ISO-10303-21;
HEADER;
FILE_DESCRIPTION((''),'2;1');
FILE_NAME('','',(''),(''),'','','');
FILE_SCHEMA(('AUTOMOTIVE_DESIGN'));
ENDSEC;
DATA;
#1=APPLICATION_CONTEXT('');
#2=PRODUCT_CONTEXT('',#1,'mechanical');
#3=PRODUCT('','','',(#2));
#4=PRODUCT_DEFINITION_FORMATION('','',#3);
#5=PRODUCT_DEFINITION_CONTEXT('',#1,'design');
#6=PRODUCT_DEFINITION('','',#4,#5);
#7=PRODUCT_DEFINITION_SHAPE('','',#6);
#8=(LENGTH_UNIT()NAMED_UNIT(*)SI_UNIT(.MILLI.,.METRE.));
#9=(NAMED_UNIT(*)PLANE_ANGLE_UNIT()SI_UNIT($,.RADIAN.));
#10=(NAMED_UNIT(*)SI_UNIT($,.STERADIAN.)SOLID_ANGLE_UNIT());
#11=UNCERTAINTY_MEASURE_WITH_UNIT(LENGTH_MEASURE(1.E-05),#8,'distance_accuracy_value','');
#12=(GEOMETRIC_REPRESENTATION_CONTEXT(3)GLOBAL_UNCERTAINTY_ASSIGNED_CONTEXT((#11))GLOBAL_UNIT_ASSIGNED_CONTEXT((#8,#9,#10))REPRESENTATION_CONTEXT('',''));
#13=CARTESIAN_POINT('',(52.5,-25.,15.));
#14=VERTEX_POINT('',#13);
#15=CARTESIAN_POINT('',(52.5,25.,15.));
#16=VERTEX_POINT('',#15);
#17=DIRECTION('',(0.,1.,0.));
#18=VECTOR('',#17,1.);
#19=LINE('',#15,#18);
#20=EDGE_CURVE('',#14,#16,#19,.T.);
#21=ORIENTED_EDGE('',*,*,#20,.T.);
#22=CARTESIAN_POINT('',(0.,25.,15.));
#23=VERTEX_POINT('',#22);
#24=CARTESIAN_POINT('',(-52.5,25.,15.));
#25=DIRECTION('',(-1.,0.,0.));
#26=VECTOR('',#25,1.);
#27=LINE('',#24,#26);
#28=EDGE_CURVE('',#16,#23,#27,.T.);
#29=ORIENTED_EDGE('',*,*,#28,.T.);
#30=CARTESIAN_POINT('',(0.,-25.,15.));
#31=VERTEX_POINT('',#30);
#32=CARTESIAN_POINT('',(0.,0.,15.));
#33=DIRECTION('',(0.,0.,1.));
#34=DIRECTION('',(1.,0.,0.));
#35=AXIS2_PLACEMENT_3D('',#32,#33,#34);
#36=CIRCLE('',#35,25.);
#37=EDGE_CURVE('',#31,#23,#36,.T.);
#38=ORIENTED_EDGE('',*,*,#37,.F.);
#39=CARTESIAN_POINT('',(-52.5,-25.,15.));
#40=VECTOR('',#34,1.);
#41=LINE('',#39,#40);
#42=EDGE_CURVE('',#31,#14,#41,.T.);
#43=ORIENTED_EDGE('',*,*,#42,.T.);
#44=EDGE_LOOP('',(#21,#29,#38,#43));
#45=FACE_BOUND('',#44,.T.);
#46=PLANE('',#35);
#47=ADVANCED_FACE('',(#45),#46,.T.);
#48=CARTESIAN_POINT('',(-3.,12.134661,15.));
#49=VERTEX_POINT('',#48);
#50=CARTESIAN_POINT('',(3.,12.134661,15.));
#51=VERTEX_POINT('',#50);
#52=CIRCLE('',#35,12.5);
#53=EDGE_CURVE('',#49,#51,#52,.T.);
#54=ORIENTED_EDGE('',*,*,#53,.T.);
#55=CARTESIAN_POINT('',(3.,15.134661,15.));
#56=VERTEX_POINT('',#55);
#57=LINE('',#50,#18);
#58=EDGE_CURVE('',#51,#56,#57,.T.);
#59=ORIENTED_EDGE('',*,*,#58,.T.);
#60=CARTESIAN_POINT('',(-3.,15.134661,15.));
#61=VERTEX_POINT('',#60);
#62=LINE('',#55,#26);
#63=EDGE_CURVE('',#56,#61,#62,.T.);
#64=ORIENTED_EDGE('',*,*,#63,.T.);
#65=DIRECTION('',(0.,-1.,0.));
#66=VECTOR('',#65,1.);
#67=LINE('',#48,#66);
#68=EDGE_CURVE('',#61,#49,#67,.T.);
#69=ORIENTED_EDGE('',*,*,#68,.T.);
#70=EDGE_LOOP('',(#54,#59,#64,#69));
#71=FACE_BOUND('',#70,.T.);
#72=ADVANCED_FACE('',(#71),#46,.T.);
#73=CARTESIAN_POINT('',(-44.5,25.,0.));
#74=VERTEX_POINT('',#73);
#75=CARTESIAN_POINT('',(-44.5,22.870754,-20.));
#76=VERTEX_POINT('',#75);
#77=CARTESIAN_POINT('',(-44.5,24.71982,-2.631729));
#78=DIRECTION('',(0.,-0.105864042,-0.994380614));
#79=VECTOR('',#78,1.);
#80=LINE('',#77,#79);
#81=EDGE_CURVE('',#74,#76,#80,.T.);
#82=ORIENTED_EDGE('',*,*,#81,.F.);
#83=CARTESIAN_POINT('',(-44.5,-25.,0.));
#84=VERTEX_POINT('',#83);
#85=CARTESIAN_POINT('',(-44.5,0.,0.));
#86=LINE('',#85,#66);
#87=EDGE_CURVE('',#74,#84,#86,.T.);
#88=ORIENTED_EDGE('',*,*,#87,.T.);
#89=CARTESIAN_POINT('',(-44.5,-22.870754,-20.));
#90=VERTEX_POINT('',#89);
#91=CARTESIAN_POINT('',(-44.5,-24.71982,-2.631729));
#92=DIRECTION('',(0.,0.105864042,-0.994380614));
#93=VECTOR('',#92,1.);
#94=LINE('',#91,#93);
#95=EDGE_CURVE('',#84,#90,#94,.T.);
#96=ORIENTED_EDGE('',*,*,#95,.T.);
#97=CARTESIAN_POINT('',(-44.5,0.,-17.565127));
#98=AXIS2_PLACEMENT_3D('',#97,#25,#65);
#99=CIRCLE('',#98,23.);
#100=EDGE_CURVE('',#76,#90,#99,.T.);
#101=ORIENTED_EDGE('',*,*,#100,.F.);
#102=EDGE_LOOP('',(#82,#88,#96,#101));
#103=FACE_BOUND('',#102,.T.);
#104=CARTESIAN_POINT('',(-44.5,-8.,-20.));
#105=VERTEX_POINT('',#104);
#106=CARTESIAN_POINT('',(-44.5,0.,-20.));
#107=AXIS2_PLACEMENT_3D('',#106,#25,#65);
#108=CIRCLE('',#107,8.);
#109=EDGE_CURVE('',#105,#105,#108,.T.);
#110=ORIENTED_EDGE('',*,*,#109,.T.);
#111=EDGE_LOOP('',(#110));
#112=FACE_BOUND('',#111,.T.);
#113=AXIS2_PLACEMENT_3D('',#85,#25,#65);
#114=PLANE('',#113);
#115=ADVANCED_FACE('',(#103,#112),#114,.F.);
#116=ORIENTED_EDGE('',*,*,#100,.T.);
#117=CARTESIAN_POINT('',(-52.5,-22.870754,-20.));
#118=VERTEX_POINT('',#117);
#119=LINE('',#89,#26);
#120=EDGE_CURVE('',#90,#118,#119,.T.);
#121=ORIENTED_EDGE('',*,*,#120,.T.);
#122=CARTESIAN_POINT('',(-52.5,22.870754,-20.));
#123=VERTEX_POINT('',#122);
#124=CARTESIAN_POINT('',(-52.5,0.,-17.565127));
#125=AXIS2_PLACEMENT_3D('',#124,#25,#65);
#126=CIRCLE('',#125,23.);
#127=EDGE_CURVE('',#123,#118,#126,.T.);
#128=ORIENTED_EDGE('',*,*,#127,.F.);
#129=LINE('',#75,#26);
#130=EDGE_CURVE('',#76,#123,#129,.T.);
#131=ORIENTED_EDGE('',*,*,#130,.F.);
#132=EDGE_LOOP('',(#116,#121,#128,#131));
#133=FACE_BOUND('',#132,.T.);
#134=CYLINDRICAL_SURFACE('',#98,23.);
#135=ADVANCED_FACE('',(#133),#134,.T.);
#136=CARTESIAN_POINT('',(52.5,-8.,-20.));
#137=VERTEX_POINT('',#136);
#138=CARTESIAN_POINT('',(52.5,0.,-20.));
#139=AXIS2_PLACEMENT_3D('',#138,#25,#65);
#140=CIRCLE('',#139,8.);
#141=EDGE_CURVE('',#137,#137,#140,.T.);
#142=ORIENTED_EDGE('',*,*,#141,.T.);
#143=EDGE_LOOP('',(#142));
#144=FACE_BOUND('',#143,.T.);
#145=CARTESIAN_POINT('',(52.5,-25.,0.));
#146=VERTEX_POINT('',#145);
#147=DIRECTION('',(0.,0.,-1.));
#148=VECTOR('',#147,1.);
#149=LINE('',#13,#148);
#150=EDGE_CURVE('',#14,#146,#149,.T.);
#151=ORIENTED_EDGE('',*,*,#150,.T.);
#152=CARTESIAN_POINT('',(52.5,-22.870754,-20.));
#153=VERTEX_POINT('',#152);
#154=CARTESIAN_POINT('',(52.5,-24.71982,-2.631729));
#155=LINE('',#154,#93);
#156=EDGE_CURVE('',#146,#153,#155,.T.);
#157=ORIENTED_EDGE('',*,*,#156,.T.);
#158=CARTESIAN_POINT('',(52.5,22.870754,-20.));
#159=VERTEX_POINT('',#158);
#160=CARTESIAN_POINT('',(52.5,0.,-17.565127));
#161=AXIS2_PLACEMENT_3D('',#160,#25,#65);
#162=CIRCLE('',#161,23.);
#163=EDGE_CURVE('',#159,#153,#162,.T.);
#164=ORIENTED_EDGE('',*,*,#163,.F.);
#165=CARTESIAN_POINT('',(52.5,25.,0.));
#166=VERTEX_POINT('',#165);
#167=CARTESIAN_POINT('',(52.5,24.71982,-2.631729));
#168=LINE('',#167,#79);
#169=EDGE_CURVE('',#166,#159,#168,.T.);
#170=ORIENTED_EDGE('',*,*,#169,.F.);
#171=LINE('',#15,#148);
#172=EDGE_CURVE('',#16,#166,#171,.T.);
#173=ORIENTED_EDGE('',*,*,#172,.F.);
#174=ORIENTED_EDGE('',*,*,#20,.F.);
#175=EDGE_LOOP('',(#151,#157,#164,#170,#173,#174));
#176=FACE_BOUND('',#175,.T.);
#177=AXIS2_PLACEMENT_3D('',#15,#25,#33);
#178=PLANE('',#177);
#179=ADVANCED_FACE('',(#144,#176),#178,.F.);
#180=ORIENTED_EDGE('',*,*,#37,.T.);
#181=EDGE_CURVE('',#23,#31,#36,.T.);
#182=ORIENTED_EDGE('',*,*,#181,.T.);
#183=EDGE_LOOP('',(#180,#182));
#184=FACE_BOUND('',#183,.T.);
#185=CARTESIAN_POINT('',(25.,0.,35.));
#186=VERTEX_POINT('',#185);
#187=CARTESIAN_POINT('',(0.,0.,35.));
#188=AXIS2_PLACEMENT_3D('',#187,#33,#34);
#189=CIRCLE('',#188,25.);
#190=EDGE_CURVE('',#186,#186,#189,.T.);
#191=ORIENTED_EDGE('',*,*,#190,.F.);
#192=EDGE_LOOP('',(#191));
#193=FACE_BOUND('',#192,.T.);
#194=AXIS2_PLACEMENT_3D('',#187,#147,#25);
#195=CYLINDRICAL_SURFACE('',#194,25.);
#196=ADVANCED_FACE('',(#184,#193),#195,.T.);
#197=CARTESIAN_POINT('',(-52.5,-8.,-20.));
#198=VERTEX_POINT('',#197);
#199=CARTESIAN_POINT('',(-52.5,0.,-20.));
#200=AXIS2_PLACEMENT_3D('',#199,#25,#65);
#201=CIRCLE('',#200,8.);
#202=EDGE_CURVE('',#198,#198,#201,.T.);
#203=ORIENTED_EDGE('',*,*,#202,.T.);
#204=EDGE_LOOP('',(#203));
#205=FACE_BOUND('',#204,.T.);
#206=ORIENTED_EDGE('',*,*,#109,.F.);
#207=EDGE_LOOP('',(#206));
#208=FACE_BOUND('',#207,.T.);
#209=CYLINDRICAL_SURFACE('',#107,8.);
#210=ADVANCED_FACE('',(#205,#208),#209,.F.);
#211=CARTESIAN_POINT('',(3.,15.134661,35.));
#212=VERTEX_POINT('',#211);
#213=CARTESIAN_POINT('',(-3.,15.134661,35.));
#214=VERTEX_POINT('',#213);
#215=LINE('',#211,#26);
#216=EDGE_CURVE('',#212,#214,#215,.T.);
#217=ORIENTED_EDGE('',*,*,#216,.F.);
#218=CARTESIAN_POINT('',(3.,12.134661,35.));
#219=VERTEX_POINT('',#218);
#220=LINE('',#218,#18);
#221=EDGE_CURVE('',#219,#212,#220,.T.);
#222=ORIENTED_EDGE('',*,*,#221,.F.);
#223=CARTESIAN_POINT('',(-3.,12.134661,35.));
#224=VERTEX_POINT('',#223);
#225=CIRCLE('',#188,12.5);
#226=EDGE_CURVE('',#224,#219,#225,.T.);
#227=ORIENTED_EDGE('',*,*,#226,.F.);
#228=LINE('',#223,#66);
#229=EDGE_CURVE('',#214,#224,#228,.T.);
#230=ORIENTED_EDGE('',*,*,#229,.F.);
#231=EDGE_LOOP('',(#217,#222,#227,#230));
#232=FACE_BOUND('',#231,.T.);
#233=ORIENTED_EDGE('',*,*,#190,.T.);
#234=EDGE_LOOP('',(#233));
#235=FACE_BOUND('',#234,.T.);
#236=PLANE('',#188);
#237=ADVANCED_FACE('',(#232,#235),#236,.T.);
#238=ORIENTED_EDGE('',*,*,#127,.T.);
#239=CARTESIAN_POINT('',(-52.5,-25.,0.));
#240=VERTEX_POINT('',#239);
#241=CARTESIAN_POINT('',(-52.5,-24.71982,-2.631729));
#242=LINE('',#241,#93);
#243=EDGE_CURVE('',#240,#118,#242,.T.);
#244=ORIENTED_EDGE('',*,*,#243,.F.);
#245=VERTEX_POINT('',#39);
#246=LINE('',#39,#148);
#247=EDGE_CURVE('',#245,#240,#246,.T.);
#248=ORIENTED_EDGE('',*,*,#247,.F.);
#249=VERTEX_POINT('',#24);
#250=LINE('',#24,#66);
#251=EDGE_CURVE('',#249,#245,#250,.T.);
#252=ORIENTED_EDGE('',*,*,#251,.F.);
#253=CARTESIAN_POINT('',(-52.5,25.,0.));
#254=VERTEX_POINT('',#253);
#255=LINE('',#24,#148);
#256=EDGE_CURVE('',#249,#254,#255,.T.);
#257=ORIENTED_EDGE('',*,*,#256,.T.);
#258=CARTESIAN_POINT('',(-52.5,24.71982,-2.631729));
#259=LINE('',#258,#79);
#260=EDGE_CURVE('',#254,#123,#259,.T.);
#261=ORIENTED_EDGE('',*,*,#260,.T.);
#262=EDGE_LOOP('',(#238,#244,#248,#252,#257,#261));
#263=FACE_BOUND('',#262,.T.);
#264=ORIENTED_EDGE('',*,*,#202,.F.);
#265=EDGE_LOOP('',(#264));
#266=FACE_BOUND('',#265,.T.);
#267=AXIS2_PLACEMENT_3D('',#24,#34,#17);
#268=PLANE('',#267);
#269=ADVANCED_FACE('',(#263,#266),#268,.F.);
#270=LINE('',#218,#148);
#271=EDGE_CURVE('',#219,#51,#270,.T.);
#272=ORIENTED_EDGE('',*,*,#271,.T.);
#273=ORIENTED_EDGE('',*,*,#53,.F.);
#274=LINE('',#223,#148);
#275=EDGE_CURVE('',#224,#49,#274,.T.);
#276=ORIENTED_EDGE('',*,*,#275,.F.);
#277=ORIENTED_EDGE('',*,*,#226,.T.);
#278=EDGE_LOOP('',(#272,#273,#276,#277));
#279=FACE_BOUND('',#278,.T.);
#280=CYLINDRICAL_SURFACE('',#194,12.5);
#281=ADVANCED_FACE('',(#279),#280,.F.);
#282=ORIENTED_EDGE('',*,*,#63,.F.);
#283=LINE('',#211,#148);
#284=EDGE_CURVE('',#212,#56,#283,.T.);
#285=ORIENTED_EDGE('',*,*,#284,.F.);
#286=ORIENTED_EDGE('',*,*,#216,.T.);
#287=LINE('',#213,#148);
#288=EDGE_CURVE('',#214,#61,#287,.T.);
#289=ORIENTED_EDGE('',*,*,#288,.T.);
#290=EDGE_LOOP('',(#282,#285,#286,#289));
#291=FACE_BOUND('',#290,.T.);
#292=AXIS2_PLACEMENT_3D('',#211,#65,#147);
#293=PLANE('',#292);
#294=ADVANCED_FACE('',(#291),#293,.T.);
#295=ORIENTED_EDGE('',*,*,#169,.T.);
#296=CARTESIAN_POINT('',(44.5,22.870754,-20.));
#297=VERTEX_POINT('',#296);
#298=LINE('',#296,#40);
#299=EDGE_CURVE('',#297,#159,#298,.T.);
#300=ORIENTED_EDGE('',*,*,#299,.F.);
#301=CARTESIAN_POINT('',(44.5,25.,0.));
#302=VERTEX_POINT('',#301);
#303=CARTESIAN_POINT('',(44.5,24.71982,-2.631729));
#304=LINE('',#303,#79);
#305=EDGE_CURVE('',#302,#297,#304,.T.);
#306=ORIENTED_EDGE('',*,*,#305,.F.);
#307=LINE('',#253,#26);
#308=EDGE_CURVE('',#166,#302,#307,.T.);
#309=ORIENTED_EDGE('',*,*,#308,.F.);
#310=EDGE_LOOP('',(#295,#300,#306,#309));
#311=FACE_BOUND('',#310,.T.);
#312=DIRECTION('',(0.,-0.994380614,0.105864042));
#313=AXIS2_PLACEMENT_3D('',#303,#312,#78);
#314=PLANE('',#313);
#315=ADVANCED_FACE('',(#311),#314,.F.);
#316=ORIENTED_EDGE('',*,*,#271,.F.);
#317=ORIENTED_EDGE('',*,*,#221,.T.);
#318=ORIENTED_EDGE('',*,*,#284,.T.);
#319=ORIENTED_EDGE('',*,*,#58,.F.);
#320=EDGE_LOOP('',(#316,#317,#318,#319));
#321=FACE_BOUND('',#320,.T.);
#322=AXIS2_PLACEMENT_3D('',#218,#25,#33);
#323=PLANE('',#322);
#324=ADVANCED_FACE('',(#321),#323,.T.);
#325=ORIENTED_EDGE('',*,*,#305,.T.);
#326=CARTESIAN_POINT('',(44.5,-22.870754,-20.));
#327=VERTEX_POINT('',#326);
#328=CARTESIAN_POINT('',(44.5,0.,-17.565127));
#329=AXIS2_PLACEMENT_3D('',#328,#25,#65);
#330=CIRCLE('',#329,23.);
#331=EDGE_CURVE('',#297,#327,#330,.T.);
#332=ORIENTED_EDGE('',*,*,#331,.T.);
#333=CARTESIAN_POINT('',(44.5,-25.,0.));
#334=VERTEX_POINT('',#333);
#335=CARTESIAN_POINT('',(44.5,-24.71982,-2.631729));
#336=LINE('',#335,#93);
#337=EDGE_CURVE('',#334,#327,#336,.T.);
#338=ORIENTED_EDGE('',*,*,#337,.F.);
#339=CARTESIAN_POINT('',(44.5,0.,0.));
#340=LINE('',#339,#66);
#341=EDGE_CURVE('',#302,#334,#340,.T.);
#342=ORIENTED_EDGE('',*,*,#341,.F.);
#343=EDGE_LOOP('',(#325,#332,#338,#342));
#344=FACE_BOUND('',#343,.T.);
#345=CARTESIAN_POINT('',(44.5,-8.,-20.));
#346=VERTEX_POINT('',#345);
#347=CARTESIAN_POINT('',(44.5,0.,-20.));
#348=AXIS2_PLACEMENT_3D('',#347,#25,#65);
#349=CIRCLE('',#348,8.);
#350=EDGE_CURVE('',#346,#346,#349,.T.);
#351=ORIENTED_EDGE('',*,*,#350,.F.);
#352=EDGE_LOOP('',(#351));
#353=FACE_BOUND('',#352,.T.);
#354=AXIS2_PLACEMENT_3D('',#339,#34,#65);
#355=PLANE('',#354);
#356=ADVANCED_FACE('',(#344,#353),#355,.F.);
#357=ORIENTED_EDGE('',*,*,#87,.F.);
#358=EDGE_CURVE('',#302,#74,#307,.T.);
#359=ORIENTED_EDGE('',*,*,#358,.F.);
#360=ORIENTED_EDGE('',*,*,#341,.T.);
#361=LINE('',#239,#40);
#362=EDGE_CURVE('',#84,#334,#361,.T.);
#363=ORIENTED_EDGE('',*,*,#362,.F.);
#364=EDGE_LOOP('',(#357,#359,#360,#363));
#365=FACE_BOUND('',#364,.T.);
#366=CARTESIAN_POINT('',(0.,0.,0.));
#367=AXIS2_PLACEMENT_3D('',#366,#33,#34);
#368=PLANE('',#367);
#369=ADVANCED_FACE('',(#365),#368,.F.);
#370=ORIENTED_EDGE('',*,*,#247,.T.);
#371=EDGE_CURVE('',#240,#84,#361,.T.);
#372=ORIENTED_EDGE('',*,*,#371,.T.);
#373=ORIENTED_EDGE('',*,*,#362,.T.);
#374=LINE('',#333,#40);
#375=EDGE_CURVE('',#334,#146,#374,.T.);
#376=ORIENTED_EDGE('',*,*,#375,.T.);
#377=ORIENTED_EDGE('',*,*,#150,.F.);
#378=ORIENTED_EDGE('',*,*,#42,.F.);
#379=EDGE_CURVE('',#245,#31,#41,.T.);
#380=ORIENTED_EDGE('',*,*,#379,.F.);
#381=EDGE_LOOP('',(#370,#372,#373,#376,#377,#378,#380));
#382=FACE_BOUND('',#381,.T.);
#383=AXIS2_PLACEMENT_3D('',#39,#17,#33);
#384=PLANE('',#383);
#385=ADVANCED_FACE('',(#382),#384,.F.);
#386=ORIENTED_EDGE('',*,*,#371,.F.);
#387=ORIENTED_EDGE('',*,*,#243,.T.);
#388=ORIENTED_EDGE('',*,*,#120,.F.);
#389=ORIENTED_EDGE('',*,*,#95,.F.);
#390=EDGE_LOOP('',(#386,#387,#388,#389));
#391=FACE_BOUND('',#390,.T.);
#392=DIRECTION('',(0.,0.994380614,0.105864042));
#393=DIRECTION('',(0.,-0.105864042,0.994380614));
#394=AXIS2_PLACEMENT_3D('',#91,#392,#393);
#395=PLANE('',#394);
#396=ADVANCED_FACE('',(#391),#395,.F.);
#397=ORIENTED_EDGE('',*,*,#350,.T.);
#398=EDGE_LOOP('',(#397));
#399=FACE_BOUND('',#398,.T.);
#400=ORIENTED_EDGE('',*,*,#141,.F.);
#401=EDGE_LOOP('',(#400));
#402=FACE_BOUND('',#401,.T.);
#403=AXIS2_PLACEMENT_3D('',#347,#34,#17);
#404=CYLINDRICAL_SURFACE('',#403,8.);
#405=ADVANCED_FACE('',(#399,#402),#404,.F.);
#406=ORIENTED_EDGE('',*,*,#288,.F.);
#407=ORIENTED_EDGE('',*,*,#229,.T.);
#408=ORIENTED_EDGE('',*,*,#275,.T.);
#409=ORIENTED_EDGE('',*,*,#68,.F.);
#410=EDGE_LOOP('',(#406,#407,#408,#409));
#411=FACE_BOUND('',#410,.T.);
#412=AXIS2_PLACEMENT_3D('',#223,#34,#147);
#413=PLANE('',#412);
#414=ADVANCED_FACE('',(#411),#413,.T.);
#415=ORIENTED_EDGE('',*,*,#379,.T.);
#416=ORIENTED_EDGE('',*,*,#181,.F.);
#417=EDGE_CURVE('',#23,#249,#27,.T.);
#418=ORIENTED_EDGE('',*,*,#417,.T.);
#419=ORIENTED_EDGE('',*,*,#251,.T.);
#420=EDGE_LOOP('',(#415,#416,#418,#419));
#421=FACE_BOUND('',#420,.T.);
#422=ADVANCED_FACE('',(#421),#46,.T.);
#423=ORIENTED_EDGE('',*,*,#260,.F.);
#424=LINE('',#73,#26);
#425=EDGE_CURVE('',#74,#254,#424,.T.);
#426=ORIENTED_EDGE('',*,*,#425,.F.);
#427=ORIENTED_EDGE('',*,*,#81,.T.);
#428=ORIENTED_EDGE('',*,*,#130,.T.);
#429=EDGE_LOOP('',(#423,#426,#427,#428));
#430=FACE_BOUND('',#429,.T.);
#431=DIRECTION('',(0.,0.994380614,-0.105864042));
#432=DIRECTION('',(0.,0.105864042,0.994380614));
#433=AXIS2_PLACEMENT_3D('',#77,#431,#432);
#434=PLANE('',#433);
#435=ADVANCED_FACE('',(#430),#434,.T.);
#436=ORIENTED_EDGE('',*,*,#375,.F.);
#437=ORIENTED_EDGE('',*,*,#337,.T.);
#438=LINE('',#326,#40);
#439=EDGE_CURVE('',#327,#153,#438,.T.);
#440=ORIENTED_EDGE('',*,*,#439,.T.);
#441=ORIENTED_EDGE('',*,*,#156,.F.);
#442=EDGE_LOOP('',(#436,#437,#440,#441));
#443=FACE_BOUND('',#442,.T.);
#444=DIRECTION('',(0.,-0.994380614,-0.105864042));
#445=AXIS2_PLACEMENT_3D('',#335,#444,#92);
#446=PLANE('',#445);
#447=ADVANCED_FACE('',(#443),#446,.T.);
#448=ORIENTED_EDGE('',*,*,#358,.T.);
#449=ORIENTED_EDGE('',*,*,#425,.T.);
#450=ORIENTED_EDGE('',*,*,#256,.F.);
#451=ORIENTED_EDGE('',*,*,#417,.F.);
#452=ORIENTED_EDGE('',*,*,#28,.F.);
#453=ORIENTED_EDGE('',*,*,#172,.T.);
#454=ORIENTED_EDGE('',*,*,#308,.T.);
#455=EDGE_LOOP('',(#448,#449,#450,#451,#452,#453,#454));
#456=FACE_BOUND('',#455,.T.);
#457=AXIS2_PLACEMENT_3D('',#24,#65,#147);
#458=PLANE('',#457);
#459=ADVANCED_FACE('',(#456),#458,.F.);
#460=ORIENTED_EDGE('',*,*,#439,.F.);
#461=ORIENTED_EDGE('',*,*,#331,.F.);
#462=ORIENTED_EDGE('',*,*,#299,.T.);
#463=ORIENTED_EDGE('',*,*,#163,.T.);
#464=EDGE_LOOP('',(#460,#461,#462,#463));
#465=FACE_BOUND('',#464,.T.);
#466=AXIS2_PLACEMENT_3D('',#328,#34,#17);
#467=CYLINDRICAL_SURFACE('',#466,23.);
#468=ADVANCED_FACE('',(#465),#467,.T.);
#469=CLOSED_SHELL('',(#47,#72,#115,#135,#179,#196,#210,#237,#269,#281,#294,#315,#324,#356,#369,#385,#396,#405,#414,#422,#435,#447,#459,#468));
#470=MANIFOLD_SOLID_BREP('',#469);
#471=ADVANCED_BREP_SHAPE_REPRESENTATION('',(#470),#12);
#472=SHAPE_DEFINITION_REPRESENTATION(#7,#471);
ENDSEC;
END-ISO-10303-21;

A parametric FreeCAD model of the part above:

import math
import FreeCAD as App
import Part
import Sketcher

V = App.Vector
Q = App.Units.Quantity

doc = App.newDocument("Part")
body = doc.addObject("PartDesign::Body", "Body")

sketch1 = body.newObject("Sketcher::SketchObject", "Sketch")
sketch1.AttachmentSupport = (doc.getObject("XY_Plane"), [""])
sketch1.MapMode = "FlatFace"
sketch1.addGeometry(Part.LineSegment(V(-52, 25, 0), V(-52, -25, 0)), False)
sketch1.addGeometry(Part.LineSegment(V(-52, -25, 0), V(52, -25, 0)), False)
sketch1.addGeometry(Part.LineSegment(V(52, -25, 0), V(52, 25, 0)), False)
sketch1.addGeometry(Part.LineSegment(V(52, 25, 0), V(-52, 25, 0)), False)
sketch1.addConstraint(Sketcher.Constraint("Coincident", 0, 2, 1, 1))
sketch1.addConstraint(Sketcher.Constraint("Coincident", 1, 2, 2, 1))
sketch1.addConstraint(Sketcher.Constraint("Coincident", 2, 2, 3, 1))
sketch1.addConstraint(Sketcher.Constraint("Coincident", 3, 2, 0, 1))
sketch1.addConstraint(Sketcher.Constraint("Vertical", 0))
sketch1.addConstraint(Sketcher.Constraint("Horizontal", 1))
sketch1.addConstraint(Sketcher.Constraint("Vertical", 2))
sketch1.addConstraint(Sketcher.Constraint("Horizontal", 3))
sketch1.addConstraint(Sketcher.Constraint("Symmetric", 0, 2, 2, 2, -1, 1))
sketch1.addConstraint(Sketcher.Constraint("DistanceX", 1, 1, 1, 2, Q("105 mm")))
sketch1.addConstraint(Sketcher.Constraint("DistanceY", 0, 2, 0, 1, Q("50 mm")))
pad1 = body.newObject("PartDesign::Pad", "Pad")
pad1.Profile = sketch1
pad1.Length = 15

sketch2 = body.newObject("Sketcher::SketchObject", "Sketch001")
sketch2.AttachmentSupport = (doc.getObject("YZ_Plane"), [""])
sketch2.MapMode = "FlatFace"
sketch2.AttachmentOffset = App.Placement(V(0, 0, -52.5), App.Rotation())
sketch2.addGeometry(Part.LineSegment(V(-25, 0, 0), V(25, 0, 0)), False)
sketch2.addGeometry(Part.LineSegment(V(25, 0, 0), V(23, -20, 0)), False)
sketch2.addGeometry(Part.ArcOfCircle(Part.Circle(V(0, -18, 0), V(0, 0, 1), 23), math.radians(-174), math.radians(-6)), False)
sketch2.addGeometry(Part.LineSegment(V(-23, -20, 0), V(-25, 0, 0)), False)
sketch2.addGeometry(Part.Circle(V(0, -20, 0), V(0, 0, 1), 8), False)
sketch2.addConstraint(Sketcher.Constraint("Coincident", 0, 2, 1, 1))
sketch2.addConstraint(Sketcher.Constraint("Tangent", 1, 2, 2, 2))
sketch2.addConstraint(Sketcher.Constraint("Tangent", 2, 1, 3, 1))
sketch2.addConstraint(Sketcher.Constraint("Coincident", 3, 2, 0, 1))
sketch2.addConstraint(Sketcher.Constraint("Horizontal", 0))
sketch2.addConstraint(Sketcher.Constraint("Symmetric", 0, 2, 3, 2, -1, 1))
sketch2.addConstraint(Sketcher.Constraint("PointOnObject", 2, 3, -2))
sketch2.addConstraint(Sketcher.Constraint("PointOnObject", 4, 3, -2))
sketch2.addConstraint(Sketcher.Constraint("Horizontal", 4, 3, 1, 2))
sketch2.addConstraint(Sketcher.Constraint("Diameter", 4, Q("16 mm")))
sketch2.addConstraint(Sketcher.Constraint("Radius", 2, Q("23 mm")))
sketch2.addConstraint(Sketcher.Constraint("DistanceX", 0, 1, 0, 2, Q("50 mm")))
sketch2.addConstraint(Sketcher.Constraint("DistanceY", 4, 3, -1, 1, Q("20 mm")))
pad2 = body.newObject("PartDesign::Pad", "Pad001")
pad2.Profile = sketch2
pad2.Length = 8
doc.recompute()

mirrored = body.newObject("PartDesign::Mirrored", "Mirrored")
mirrored.Originals = [pad2]
mirrored.MirrorPlane = (doc.getObject("YZ_Plane"), [""])
body.Tip = mirrored

sketch3 = body.newObject("Sketcher::SketchObject", "Sketch002")
sketch3.AttachmentSupport = (doc.getObject("XY_Plane"), [""])
sketch3.MapMode = "FlatFace"
sketch3.AttachmentOffset = App.Placement(V(0, 0, 15), App.Rotation())
sketch3.addGeometry(Part.Circle(V(0, 0, 0), V(0, 0, 1), 25), False)
sketch3.addGeometry(Part.LineSegment(V(3, 15.1, 0), V(3, 12.1, 0)), False)
sketch3.addGeometry(Part.ArcOfCircle(Part.Circle(V(0, 0, 0), V(0, 0, 1), 12.5), math.radians(104), math.radians(436)), False)
sketch3.addGeometry(Part.LineSegment(V(-3, 12.1, 0), V(-3, 15.1, 0)), False)
sketch3.addGeometry(Part.LineSegment(V(-3, 15.1, 0), V(3, 15.1, 0)), False)
sketch3.addConstraint(Sketcher.Constraint("Coincident", 1, 2, 2, 2))
sketch3.addConstraint(Sketcher.Constraint("Coincident", 2, 1, 3, 1))
sketch3.addConstraint(Sketcher.Constraint("Coincident", 3, 2, 4, 1))
sketch3.addConstraint(Sketcher.Constraint("Coincident", 4, 2, 1, 1))
sketch3.addConstraint(Sketcher.Constraint("Vertical", 1))
sketch3.addConstraint(Sketcher.Constraint("Vertical", 3))
sketch3.addConstraint(Sketcher.Constraint("Horizontal", 4))
sketch3.addConstraint(Sketcher.Constraint("Coincident", 0, 3, -1, 1))
sketch3.addConstraint(Sketcher.Constraint("Coincident", 2, 3, -1, 1))
sketch3.addConstraint(Sketcher.Constraint("Horizontal", 1, 2, 2, 1))
sketch3.addConstraint(Sketcher.Constraint("Diameter", 0, Q("50 mm")))
sketch3.addConstraint(Sketcher.Constraint("Radius", 2, Q("12.5 mm")))
sketch3.addConstraint(Sketcher.Constraint("DistanceX", 4, 1, 4, 2, Q("6 mm")))
sketch3.addConstraint(Sketcher.Constraint("DistanceY", 1, 2, 1, 1, Q("3 mm")))
pad3 = body.newObject("PartDesign::Pad", "Pad002")
pad3.Profile = sketch3
pad3.Length = 20

doc.recompute()
